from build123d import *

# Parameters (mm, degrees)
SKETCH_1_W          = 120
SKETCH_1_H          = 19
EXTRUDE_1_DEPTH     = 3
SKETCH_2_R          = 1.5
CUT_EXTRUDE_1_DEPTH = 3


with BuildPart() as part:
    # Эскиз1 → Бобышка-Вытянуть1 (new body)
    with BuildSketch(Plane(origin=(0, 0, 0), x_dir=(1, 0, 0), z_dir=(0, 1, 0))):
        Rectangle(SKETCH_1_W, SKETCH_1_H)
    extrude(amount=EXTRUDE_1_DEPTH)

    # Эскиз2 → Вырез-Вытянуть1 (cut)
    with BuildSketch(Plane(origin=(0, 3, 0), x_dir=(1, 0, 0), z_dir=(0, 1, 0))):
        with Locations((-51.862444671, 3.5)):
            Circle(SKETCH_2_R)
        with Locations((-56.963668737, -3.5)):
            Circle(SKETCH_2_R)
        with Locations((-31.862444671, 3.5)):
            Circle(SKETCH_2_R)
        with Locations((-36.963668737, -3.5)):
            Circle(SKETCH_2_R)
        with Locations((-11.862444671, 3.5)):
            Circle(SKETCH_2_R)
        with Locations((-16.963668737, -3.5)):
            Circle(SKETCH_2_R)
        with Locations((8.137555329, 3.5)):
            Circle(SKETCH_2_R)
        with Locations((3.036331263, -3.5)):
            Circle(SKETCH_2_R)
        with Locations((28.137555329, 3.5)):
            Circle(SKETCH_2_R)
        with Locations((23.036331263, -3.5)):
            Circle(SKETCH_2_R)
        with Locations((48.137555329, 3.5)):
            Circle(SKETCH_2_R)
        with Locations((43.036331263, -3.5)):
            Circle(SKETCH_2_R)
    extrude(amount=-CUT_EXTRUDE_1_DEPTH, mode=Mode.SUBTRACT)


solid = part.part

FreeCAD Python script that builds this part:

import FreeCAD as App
import Part
import Sketcher

V = App.Vector
Q = App.Units.Quantity

doc = App.newDocument("Part")
body = doc.addObject("PartDesign::Body", "Body")

sketch1 = doc.addObject("Sketcher::SketchObject", "Sketch")
body.addObject(sketch1)
sketch1.AttachmentSupport = (doc.XZ_Plane, [""])
sketch1.MapMode = "FlatFace"
sketch1.addGeometry([
    Part.LineSegment(V(-60, -9.5, 0), V(-60, 9.5, 0)),
    Part.LineSegment(V(-60, 9.5, 0), V(60, 9.5, 0)),
    Part.LineSegment(V(60, 9.5, 0), V(60, -9.5, 0)),
    Part.LineSegment(V(60, -9.5, 0), V(-60, -9.5, 0)),
], False)
sketch1.addConstraint([
    Sketcher.Constraint("Coincident", 0, 2, 1, 1),
    Sketcher.Constraint("Coincident", 1, 2, 2, 1),
    Sketcher.Constraint("Coincident", 2, 2, 3, 1),
    Sketcher.Constraint("Coincident", 3, 2, 0, 1),
    Sketcher.Constraint("Vertical", 0),
    Sketcher.Constraint("Horizontal", 1),
    Sketcher.Constraint("Vertical", 2),
    Sketcher.Constraint("Horizontal", 3),
    Sketcher.Constraint("Symmetric", 0, 2, 2, 2, -1, 1),
    Sketcher.Constraint("DistanceX", 1, 1, 1, 2, Q("120 mm")),
    Sketcher.Constraint("DistanceY", 0, 1, 0, 2, Q("19 mm")),
])
pad1 = doc.addObject("PartDesign::Pad", "Pad")
body.addObject(pad1)
pad1.Profile = sketch1
pad1.Length = 3
pad1.Reversed = True

sketch2 = doc.addObject("Sketcher::SketchObject", "Sketch001")
body.addObject(sketch2)
sketch2.AttachmentSupport = (doc.XZ_Plane, [""])
sketch2.MapMode = "FlatFace"
sketch2.AttachmentOffset = App.Placement(V(0, 0, -3), App.Rotation())
sketch2.addGeometry([
    Part.Circle(V(-51.862445, -3.5, 0), V(0, 0, 1), 1.5),
    Part.Circle(V(-56.963669, 3.5, 0), V(0, 0, 1), 1.5),
    Part.Circle(V(-31.862445, -3.5, 0), V(0, 0, 1), 1.5),
    Part.Circle(V(-36.963669, 3.5, 0), V(0, 0, 1), 1.5),
    Part.Circle(V(-11.862445, -3.5, 0), V(0, 0, 1), 1.5),
    Part.Circle(V(-16.963669, 3.5, 0), V(0, 0, 1), 1.5),
    Part.Circle(V(8.137555, -3.5, 0), V(0, 0, 1), 1.5),
    Part.Circle(V(3.036331, 3.5, 0), V(0, 0, 1), 1.5),
    Part.Circle(V(28.137555, -3.5, 0), V(0, 0, 1), 1.5),
    Part.Circle(V(23.036331, 3.5, 0), V(0, 0, 1), 1.5),
    Part.Circle(V(48.137555, -3.5, 0), V(0, 0, 1), 1.5),
    Part.Circle(V(43.036331, 3.5, 0), V(0, 0, 1), 1.5),
], False)
sketch2.addConstraint([
    Sketcher.Constraint("Equal", 0, 1),
    Sketcher.Constraint("Equal", 1, 2),
    Sketcher.Constraint("Equal", 2, 3),
    Sketcher.Constraint("Equal", 3, 4),
    Sketcher.Constraint("Equal", 4, 5),
    Sketcher.Constraint("Equal", 5, 6),
    Sketcher.Constraint("Equal", 6, 7),
    Sketcher.Constraint("Equal", 7, 8),
    Sketcher.Constraint("Equal", 8, 9),
    Sketcher.Constraint("Equal", 9, 10),
    Sketcher.Constraint("Equal", 10, 11),
    Sketcher.Constraint("Horizontal", 0, 3, 2, 3),
    Sketcher.Constraint("Horizontal", 1, 3, 3, 3),
    Sketcher.Constraint("Horizontal", 2, 3, 4, 3),
    Sketcher.Constraint("Horizontal", 3, 3, 5, 3),
    Sketcher.Constraint("Horizontal", 4, 3, 6, 3),
    Sketcher.Constraint("Horizontal", 5, 3, 7, 3),
    Sketcher.Constraint("Horizontal", 6, 3, 8, 3),
    Sketcher.Constraint("Horizontal", 7, 3, 9, 3),
    Sketcher.Constraint("Horizontal", 8, 3, 10, 3),
    Sketcher.Constraint("Horizontal", 9, 3, 11, 3),
    Sketcher.Constraint("Diameter", 0, Q("3 mm")),
    Sketcher.Constraint("DistanceY", 0, 3, 1, 3, Q("7 mm")),
    Sketcher.Constraint("DistanceX", 0, 3, 2, 3, Q("20 mm")),
    Sketcher.Constraint("DistanceX", 1, 3, 3, 3, Q("20 mm")),
    Sketcher.Constraint("DistanceX", 2, 3, 4, 3, Q("20 mm")),
    Sketcher.Constraint("DistanceX", 3, 3, 5, 3, Q("20 mm")),
    Sketcher.Constraint("DistanceX", 4, 3, 6, 3, Q("20 mm")),
    Sketcher.Constraint("DistanceX", 5, 3, 7, 3, Q("20 mm")),
    Sketcher.Constraint("DistanceX", 6, 3, 8, 3, Q("20 mm")),
    Sketcher.Constraint("DistanceX", 7, 3, 9, 3, Q("20 mm")),
    Sketcher.Constraint("DistanceX", 8, 3, 10, 3, Q("20 mm")),
    Sketcher.Constraint("DistanceX", 9, 3, 11, 3, Q("20 mm")),
    Sketcher.Constraint("DistanceY", 0, 3, -1, 1, Q("3.5 mm")),
    Sketcher.Constraint("DistanceX", 1, 3, -1, 1, Q("56.963669 mm")),
    Sketcher.Constraint("DistanceX", 0, 3, -1, 1, Q("51.862445 mm")),
])
pocket1 = doc.addObject("PartDesign::Pocket", "Pocket")
body.addObject(pocket1)
pocket1.Profile = sketch2
pocket1.Length = 3
pocket1.Reversed = True

doc.recompute()
